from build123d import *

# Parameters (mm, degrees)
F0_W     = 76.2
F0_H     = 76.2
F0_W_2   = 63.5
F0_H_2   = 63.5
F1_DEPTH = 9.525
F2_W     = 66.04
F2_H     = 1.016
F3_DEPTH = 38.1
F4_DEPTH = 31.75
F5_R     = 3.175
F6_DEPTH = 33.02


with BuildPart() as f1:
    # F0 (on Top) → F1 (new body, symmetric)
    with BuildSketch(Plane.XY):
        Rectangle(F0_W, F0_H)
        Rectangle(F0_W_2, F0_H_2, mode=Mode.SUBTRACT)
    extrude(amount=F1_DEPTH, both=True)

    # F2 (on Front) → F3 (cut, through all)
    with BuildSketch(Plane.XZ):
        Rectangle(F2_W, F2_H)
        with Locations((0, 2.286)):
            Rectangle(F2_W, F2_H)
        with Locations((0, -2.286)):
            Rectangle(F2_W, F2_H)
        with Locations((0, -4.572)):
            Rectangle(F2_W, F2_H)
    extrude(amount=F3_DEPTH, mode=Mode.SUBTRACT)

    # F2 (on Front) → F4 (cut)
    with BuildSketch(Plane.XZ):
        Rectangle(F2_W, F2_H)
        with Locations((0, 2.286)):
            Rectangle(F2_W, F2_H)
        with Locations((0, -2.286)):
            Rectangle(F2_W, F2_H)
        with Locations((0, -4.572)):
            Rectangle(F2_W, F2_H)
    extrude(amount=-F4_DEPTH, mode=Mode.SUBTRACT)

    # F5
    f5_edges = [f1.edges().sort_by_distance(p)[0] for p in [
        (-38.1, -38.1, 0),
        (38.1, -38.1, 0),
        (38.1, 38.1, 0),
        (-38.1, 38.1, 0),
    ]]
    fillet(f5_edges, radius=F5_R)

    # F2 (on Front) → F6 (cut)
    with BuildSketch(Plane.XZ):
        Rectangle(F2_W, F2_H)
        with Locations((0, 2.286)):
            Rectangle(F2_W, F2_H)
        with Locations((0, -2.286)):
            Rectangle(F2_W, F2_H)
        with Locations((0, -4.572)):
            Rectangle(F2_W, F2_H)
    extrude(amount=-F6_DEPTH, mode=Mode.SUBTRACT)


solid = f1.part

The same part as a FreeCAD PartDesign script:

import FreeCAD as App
import Part
import Sketcher

V = App.Vector
Q = App.Units.Quantity


def edges_at(feature, points):
    """Names of the edges that pass closest to the given points."""
    edges = feature.Shape.Edges
    near = lambda p: min(range(len(edges)), key=lambda i: edges[i].distToShape(Part.Vertex(*p))[0])
    return sorted({f"Edge{near(p) + 1}" for p in points})


def add_polygon(sketch, points):
    """Adds a closed chain of lines whose ends are joined by coincident constraints."""
    first, n = sketch.GeometryCount, len(points)
    for a, b in zip(points, points[1:] + points[:1]):
        sketch.addGeometry(Part.LineSegment(App.Vector(*a, 0), App.Vector(*b, 0)), False)
    for i in range(n):
        sketch.addConstraint(Sketcher.Constraint("Coincident", first + i, 2, first + (i + 1) % n, 1))

doc = App.newDocument("Part")
body = doc.addObject("PartDesign::Body", "Body")

# Sketch on XY plane
sketch1 = body.newObject("Sketcher::SketchObject", "Sketch")
sketch1.AttachmentSupport = (doc.getObject("XY_Plane"), [""])
sketch1.MapMode = "FlatFace"
add_polygon(sketch1, [(-38, 38), (-38, -38), (38, -38), (38, 38)])  # lines 0-3
add_polygon(sketch1, [(32, -32), (-32, -32), (-32, 32), (32, 32)])  # lines 4-7
sketch1.addConstraint(Sketcher.Constraint("Vertical", 0))
sketch1.addConstraint(Sketcher.Constraint("Horizontal", 1))
sketch1.addConstraint(Sketcher.Constraint("Vertical", 2))
sketch1.addConstraint(Sketcher.Constraint("Horizontal", 3))
sketch1.addConstraint(Sketcher.Constraint("Horizontal", 4))
sketch1.addConstraint(Sketcher.Constraint("Vertical", 5))
sketch1.addConstraint(Sketcher.Constraint("Horizontal", 6))
sketch1.addConstraint(Sketcher.Constraint("Vertical", 7))
sketch1.addConstraint(Sketcher.Constraint("Symmetric", 0, 2, 2, 2, -1, 1))
sketch1.addConstraint(Sketcher.Constraint("Symmetric", 4, 2, 6, 2, -1, 1))
sketch1.addConstraint(Sketcher.Constraint("Equal", 3, 0))
sketch1.addConstraint(Sketcher.Constraint("Equal", 6, 5))
sketch1.addConstraint(Sketcher.Constraint("DistanceX", 1, 1, 1, 2, Q("3 in")))
sketch1.addConstraint(Sketcher.Constraint("DistanceX", 4, 2, 4, 1, Q("2.5 in")))
pad1 = body.newObject("PartDesign::Pad", "Pad")
pad1.Profile = sketch1
pad1.Length = Q("0.75 in")
pad1.Midplane = True

# Sketch on XZ plane
sketch2 = body.newObject("Sketcher::SketchObject", "Sketch001")
sketch2.AttachmentSupport = (doc.getObject("XZ_Plane"), [""])
sketch2.MapMode = "FlatFace"
add_polygon(sketch2, [(-33, 0.5), (-33, -0.5), (33, -0.5), (33, 0.5)])  # lines 0-3
add_polygon(sketch2, [(-33, 2.8), (-33, 1.8), (33, 1.8), (33, 2.8)])  # lines 4-7
add_polygon(sketch2, [(-33, -1.8), (-33, -2.8), (33, -2.8), (33, -1.8)])  # lines 8-11
add_polygon(sketch2, [(-33, -4.1), (-33, -5.1), (33, -5.1), (33, -4.1)])  # lines 12-15
sketch2.addConstraint(Sketcher.Constraint("Vertical", 0))
sketch2.addConstraint(Sketcher.Constraint("Horizontal", 1))
sketch2.addConstraint(Sketcher.Constraint("Vertical", 2))
sketch2.addConstraint(Sketcher.Constraint("Horizontal", 3))
sketch2.addConstraint(Sketcher.Constraint("Vertical", 4))
sketch2.addConstraint(Sketcher.Constraint("Horizontal", 5))
sketch2.addConstraint(Sketcher.Constraint("Vertical", 6))
sketch2.addConstraint(Sketcher.Constraint("Horizontal", 7))
sketch2.addConstraint(Sketcher.Constraint("Vertical", 8))
sketch2.addConstraint(Sketcher.Constraint("Horizontal", 9))
sketch2.addConstraint(Sketcher.Constraint("Vertical", 10))
sketch2.addConstraint(Sketcher.Constraint("Horizontal", 11))
sketch2.addConstraint(Sketcher.Constraint("Vertical", 12))
sketch2.addConstraint(Sketcher.Constraint("Horizontal", 13))
sketch2.addConstraint(Sketcher.Constraint("Vertical", 14))
sketch2.addConstraint(Sketcher.Constraint("Horizontal", 15))
sketch2.addConstraint(Sketcher.Constraint("Symmetric", 0, 2, 2, 2, -1, 1))
sketch2.addConstraint(Sketcher.Constraint("Symmetric", 6, 2, 8, 2, -1, 1))
sketch2.addConstraint(Sketcher.Constraint("Symmetric", 4, 2, 10, 2, -1, 1))
sketch2.addConstraint(Sketcher.Constraint("Vertical", 3, 2, 4, 2))
sketch2.addConstraint(Sketcher.Constraint("Vertical", 2, 2, 5, 2))
sketch2.addConstraint(Sketcher.Constraint("Vertical", 11, 2, 12, 2))
sketch2.addConstraint(Sketcher.Constraint("Vertical", 10, 2, 13, 2))
sketch2.addConstraint(Sketcher.Constraint("Equal", 2, 4))
sketch2.addConstraint(Sketcher.Constraint("Equal", 10, 12))
sketch2.addConstraint(Sketcher.Constraint("DistanceX", 1, 1, 1, 2, Q("2.6 in")))
sketch2.addConstraint(Sketcher.Constraint("DistanceY", 0, 2, 0, 1, Q("0.04 in")))
sketch2.addConstraint(Sketcher.Constraint("DistanceY", 12, 2, -1, 1, Q("0.2 in")))
sketch2.addConstraint(Sketcher.Constraint("DistanceY", -1, 1, 4, 2, Q("0.07 in")))
pocket1 = body.newObject("PartDesign::Pocket", "Pocket")
pocket1.Profile = sketch2
pocket1.Type = "ThroughAll"
pocket1.Reversed = True

# Sketch on XZ plane
sketch3 = body.newObject("Sketcher::SketchObject", "Sketch002")
sketch3.AttachmentSupport = (doc.getObject("XZ_Plane"), [""])
sketch3.MapMode = "FlatFace"
add_polygon(sketch3, [(-33, 0.5), (-33, -0.5), (33, -0.5), (33, 0.5)])  # lines 0-3
add_polygon(sketch3, [(-33, 2.8), (-33, 1.8), (33, 1.8), (33, 2.8)])  # lines 4-7
add_polygon(sketch3, [(-33, -1.8), (-33, -2.8), (33, -2.8), (33, -1.8)])  # lines 8-11
add_polygon(sketch3, [(-33, -4.1), (-33, -5.1), (33, -5.1), (33, -4.1)])  # lines 12-15
sketch3.addConstraint(Sketcher.Constraint("Vertical", 0))
sketch3.addConstraint(Sketcher.Constraint("Horizontal", 1))
sketch3.addConstraint(Sketcher.Constraint("Vertical", 2))
sketch3.addConstraint(Sketcher.Constraint("Horizontal", 3))
sketch3.addConstraint(Sketcher.Constraint("Vertical", 4))
sketch3.addConstraint(Sketcher.Constraint("Horizontal", 5))
sketch3.addConstraint(Sketcher.Constraint("Vertical", 6))
sketch3.addConstraint(Sketcher.Constraint("Horizontal", 7))
sketch3.addConstraint(Sketcher.Constraint("Vertical", 8))
sketch3.addConstraint(Sketcher.Constraint("Horizontal", 9))
sketch3.addConstraint(Sketcher.Constraint("Vertical", 10))
sketch3.addConstraint(Sketcher.Constraint("Horizontal", 11))
sketch3.addConstraint(Sketcher.Constraint("Vertical", 12))
sketch3.addConstraint(Sketcher.Constraint("Horizontal", 13))
sketch3.addConstraint(Sketcher.Constraint("Vertical", 14))
sketch3.addConstraint(Sketcher.Constraint("Horizontal", 15))
sketch3.addConstraint(Sketcher.Constraint("Symmetric", 0, 2, 2, 2, -1, 1))
sketch3.addConstraint(Sketcher.Constraint("Symmetric", 6, 2, 8, 2, -1, 1))
sketch3.addConstraint(Sketcher.Constraint("Symmetric", 4, 2, 10, 2, -1, 1))
sketch3.addConstraint(Sketcher.Constraint("Vertical", 3, 2, 4, 2))
sketch3.addConstraint(Sketcher.Constraint("Vertical", 2, 2, 5, 2))
sketch3.addConstraint(Sketcher.Constraint("Vertical", 11, 2, 12, 2))
sketch3.addConstraint(Sketcher.Constraint("Vertical", 10, 2, 13, 2))
sketch3.addConstraint(Sketcher.Constraint("Equal", 2, 4))
sketch3.addConstraint(Sketcher.Constraint("Equal", 10, 12))
sketch3.addConstraint(Sketcher.Constraint("DistanceX", 1, 1, 1, 2, Q("2.6 in")))
sketch3.addConstraint(Sketcher.Constraint("DistanceY", 0, 2, 0, 1, Q("0.04 in")))
sketch3.addConstraint(Sketcher.Constraint("DistanceY", 12, 2, -1, 1, Q("0.2 in")))
sketch3.addConstraint(Sketcher.Constraint("DistanceY", -1, 1, 4, 2, Q("0.07 in")))
pocket2 = body.newObject("PartDesign::Pocket", "Pocket001")
pocket2.Profile = sketch3
pocket2.Length = Q("1.25 in")
doc.recompute()

fillet = body.newObject("PartDesign::Fillet", "Fillet")
fillet.Base = (pocket2, edges_at(pocket2, [
    (-38.1, -38.1, 0),
    (38.1, -38.1, 0),
    (38.1, 38.1, 0),
    (-38.1, 38.1, 0),
]))
fillet.Radius = Q("0.125 in")

# Sketch on XZ plane
sketch4 = body.newObject("Sketcher::SketchObject", "Sketch003")
sketch4.AttachmentSupport = (doc.getObject("XZ_Plane"), [""])
sketch4.MapMode = "FlatFace"
add_polygon(sketch4, [(-33, 0.5), (-33, -0.5), (33, -0.5), (33, 0.5)])  # lines 0-3
add_polygon(sketch4, [(-33, 2.8), (-33, 1.8), (33, 1.8), (33, 2.8)])  # lines 4-7
add_polygon(sketch4, [(-33, -1.8), (-33, -2.8), (33, -2.8), (33, -1.8)])  # lines 8-11
add_polygon(sketch4, [(-33, -4.1), (-33, -5.1), (33, -5.1), (33, -4.1)])  # lines 12-15
sketch4.addConstraint(Sketcher.Constraint("Vertical", 0))
sketch4.addConstraint(Sketcher.Constraint("Horizontal", 1))
sketch4.addConstraint(Sketcher.Constraint("Vertical", 2))
sketch4.addConstraint(Sketcher.Constraint("Horizontal", 3))
sketch4.addConstraint(Sketcher.Constraint("Vertical", 4))
sketch4.addConstraint(Sketcher.Constraint("Horizontal", 5))
sketch4.addConstraint(Sketcher.Constraint("Vertical", 6))
sketch4.addConstraint(Sketcher.Constraint("Horizontal", 7))
sketch4.addConstraint(Sketcher.Constraint("Vertical", 8))
sketch4.addConstraint(Sketcher.Constraint("Horizontal", 9))
sketch4.addConstraint(Sketcher.Constraint("Vertical", 10))
sketch4.addConstraint(Sketcher.Constraint("Horizontal", 11))
sketch4.addConstraint(Sketcher.Constraint("Vertical", 12))
sketch4.addConstraint(Sketcher.Constraint("Horizontal", 13))
sketch4.addConstraint(Sketcher.Constraint("Vertical", 14))
sketch4.addConstraint(Sketcher.Constraint("Horizontal", 15))
sketch4.addConstraint(Sketcher.Constraint("Symmetric", 0, 2, 2, 2, -1, 1))
sketch4.addConstraint(Sketcher.Constraint("Symmetric", 6, 2, 8, 2, -1, 1))
sketch4.addConstraint(Sketcher.Constraint("Symmetric", 4, 2, 10, 2, -1, 1))
sketch4.addConstraint(Sketcher.Constraint("Vertical", 3, 2, 4, 2))
sketch4.addConstraint(Sketcher.Constraint("Vertical", 2, 2, 5, 2))
sketch4.addConstraint(Sketcher.Constraint("Vertical", 11, 2, 12, 2))
sketch4.addConstraint(Sketcher.Constraint("Vertical", 10, 2, 13, 2))
sketch4.addConstraint(Sketcher.Constraint("Equal", 2, 4))
sketch4.addConstraint(Sketcher.Constraint("Equal", 10, 12))
sketch4.addConstraint(Sketcher.Constraint("DistanceX", 1, 1, 1, 2, Q("2.6 in")))
sketch4.addConstraint(Sketcher.Constraint("DistanceY", 0, 2, 0, 1, Q("0.04 in")))
sketch4.addConstraint(Sketcher.Constraint("DistanceY", 12, 2, -1, 1, Q("0.2 in")))
sketch4.addConstraint(Sketcher.Constraint("DistanceY", -1, 1, 4, 2, Q("0.07 in")))
pocket3 = body.newObject("PartDesign::Pocket", "Pocket002")
pocket3.Profile = sketch4
pocket3.Length = Q("1.3 in")

doc.recompute()
